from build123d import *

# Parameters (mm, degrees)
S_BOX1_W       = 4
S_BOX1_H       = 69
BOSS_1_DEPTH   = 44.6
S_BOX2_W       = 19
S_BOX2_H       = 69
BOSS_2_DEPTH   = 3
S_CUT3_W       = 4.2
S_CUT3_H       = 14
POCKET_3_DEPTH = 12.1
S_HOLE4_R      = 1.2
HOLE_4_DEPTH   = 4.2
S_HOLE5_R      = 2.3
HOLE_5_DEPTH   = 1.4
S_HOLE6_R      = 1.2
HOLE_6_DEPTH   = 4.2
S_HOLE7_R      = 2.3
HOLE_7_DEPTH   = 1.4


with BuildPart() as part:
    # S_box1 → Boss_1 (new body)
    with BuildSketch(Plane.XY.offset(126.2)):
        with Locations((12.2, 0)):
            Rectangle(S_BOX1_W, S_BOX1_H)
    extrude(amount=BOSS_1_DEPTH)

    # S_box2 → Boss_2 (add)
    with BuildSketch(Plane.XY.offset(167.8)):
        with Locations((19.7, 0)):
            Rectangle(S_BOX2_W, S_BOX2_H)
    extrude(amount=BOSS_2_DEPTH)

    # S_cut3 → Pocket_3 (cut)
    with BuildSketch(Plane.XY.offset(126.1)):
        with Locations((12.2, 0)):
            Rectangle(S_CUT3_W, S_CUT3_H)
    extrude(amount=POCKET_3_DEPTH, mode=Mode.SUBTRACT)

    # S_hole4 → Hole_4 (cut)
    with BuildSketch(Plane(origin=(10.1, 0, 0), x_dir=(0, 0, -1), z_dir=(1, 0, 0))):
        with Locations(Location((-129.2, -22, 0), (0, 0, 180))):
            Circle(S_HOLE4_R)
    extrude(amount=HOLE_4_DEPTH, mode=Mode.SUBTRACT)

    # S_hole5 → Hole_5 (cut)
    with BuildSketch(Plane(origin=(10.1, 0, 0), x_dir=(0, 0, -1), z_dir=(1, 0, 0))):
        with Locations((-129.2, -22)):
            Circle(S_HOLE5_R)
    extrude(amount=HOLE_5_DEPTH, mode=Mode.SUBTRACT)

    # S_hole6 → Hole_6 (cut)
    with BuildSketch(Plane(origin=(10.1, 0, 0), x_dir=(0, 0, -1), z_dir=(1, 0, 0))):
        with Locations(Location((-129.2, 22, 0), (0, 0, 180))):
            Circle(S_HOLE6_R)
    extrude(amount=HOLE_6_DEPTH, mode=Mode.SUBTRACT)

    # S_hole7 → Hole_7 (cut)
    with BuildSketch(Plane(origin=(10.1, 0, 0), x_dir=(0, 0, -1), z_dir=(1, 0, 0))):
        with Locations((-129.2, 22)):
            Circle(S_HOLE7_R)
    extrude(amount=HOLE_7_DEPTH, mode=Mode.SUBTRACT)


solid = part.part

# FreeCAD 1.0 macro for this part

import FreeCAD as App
import Part
import Sketcher
from FreeCAD import Vector
Q = App.Units.Quantity


def add_polygon(sketch, points):
    """Adds a closed chain of lines whose ends are joined by coincident constraints."""
    first, n = sketch.GeometryCount, len(points)
    for a, b in zip(points, points[1:] + points[:1]):
        sketch.addGeometry(Part.LineSegment(App.Vector(*a, 0), App.Vector(*b, 0)), False)
    for i in range(n):
        sketch.addConstraint(Sketcher.Constraint("Coincident", first + i, 2, first + (i + 1) % n, 1))

doc = App.newDocument("Part")
body = doc.addObject("PartDesign::Body", "Body")

# Sketch on XY plane
sketch1 = body.newObject("Sketcher::SketchObject", "Sketch")
sketch1.AttachmentSupport = (doc.getObject("XY_Plane"), [""])
sketch1.MapMode = "FlatFace"
sketch1.AttachmentOffset = App.Placement(Vector(0, 0, 126.2), App.Rotation())
add_polygon(sketch1, [(10.2, 34.5), (10.2, -34.5), (14.2, -34.5), (14.2, 34.5)])  # lines 0-3
sketch1.addConstraint([
    Sketcher.Constraint("Vertical", 0),
    Sketcher.Constraint("Horizontal", 1),
    Sketcher.Constraint("Vertical", 2),
    Sketcher.Constraint("Horizontal", 3),
    Sketcher.Constraint("DistanceX", 1, 1, 1, 2, Q("4 mm")),
    Sketcher.Constraint("DistanceY", 0, 2, 0, 1, Q("69 mm")),
    Sketcher.Constraint("DistanceX", -1, 1, 0, 2, Q("10.2 mm")),
    Sketcher.Constraint("DistanceY", 0, 2, -1, 1, Q("34.5 mm")),
])
pad1 = body.newObject("PartDesign::Pad", "Pad")
pad1.Profile = sketch1
pad1.Length = 44.6

# Sketch on XY plane
sketch2 = body.newObject("Sketcher::SketchObject", "Sketch001")
sketch2.AttachmentSupport = (doc.getObject("XY_Plane"), [""])
sketch2.MapMode = "FlatFace"
sketch2.AttachmentOffset = App.Placement(Vector(0, 0, 167.8), App.Rotation())
add_polygon(sketch2, [(10.2, 34.5), (10.2, -34.5), (29.2, -34.5), (29.2, 34.5)])  # lines 0-3
sketch2.addConstraint([
    Sketcher.Constraint("Vertical", 0),
    Sketcher.Constraint("Horizontal", 1),
    Sketcher.Constraint("Vertical", 2),
    Sketcher.Constraint("Horizontal", 3),
    Sketcher.Constraint("DistanceX", 1, 1, 1, 2, Q("19 mm")),
    Sketcher.Constraint("DistanceY", 0, 2, 0, 1, Q("69 mm")),
    Sketcher.Constraint("DistanceX", -1, 1, 0, 2, Q("10.2 mm")),
    Sketcher.Constraint("DistanceY", 0, 2, -1, 1, Q("34.5 mm")),
])
pad2 = body.newObject("PartDesign::Pad", "Pad001")
pad2.Profile = sketch2
pad2.Length = 3

# Sketch on XY plane
sketch3 = body.newObject("Sketcher::SketchObject", "Sketch002")
sketch3.AttachmentSupport = (doc.getObject("XY_Plane"), [""])
sketch3.MapMode = "FlatFace"
sketch3.AttachmentOffset = App.Placement(Vector(0, 0, 126.1), App.Rotation())
add_polygon(sketch3, [(10.1, 7), (10.1, -7), (14.3, -7), (14.3, 7)])  # lines 0-3
sketch3.addConstraint([
    Sketcher.Constraint("Vertical", 0),
    Sketcher.Constraint("Horizontal", 1),
    Sketcher.Constraint("Vertical", 2),
    Sketcher.Constraint("Horizontal", 3),
    Sketcher.Constraint("DistanceY", 0, 2, 0, 1, Q("14 mm")),
    Sketcher.Constraint("DistanceX", 1, 1, 1, 2, Q("4.2 mm")),
    Sketcher.Constraint("DistanceY", 0, 2, -1, 1, Q("7 mm")),
    Sketcher.Constraint("DistanceX", -1, 1, 0, 2, Q("10.1 mm")),
])
pocket1 = body.newObject("PartDesign::Pocket", "Pocket")
pocket1.Profile = sketch3
pocket1.Length = 12.1
pocket1.Reversed = True

# Sketch on YZ plane
sketch4 = body.newObject("Sketcher::SketchObject", "Sketch003")
sketch4.AttachmentSupport = (doc.getObject("YZ_Plane"), [""])
sketch4.MapMode = "FlatFace"
sketch4.AttachmentOffset = App.Placement(Vector(0, 0, 10.1), App.Rotation())
sketch4.addGeometry(Part.Circle(Vector(-22, 129.2, 0), Vector(0, 0, 1), 1.2), False)
sketch4.addConstraint([
    Sketcher.Constraint("Diameter", 0, Q("2.4 mm")),
    Sketcher.Constraint("DistanceX", 0, 3, -1, 1, Q("22 mm")),
    Sketcher.Constraint("DistanceY", -1, 1, 0, 3, Q("129.2 mm")),
])
pocket2 = body.newObject("PartDesign::Pocket", "Pocket001")
pocket2.Profile = sketch4
pocket2.Length = 4.2
pocket2.Reversed = True

# Sketch on YZ plane
sketch5 = body.newObject("Sketcher::SketchObject", "Sketch004")
sketch5.AttachmentSupport = (doc.getObject("YZ_Plane"), [""])
sketch5.MapMode = "FlatFace"
sketch5.AttachmentOffset = App.Placement(Vector(0, 0, 10.1), App.Rotation())
sketch5.addGeometry(Part.Circle(Vector(-22, 129.2, 0), Vector(0, 0, 1), 2.3), False)
sketch5.addConstraint([
    Sketcher.Constraint("Diameter", 0, Q("4.6 mm")),
    Sketcher.Constraint("DistanceX", 0, 3, -1, 1, Q("22 mm")),
    Sketcher.Constraint("DistanceY", -1, 1, 0, 3, Q("129.2 mm")),
])
pocket3 = body.newObject("PartDesign::Pocket", "Pocket002")
pocket3.Profile = sketch5
pocket3.Length = 1.4
pocket3.Reversed = True

# Sketch on YZ plane
sketch6 = body.newObject("Sketcher::SketchObject", "Sketch005")
sketch6.AttachmentSupport = (doc.getObject("YZ_Plane"), [""])
sketch6.MapMode = "FlatFace"
sketch6.AttachmentOffset = App.Placement(Vector(0, 0, 10.1), App.Rotation())
sketch6.addGeometry(Part.Circle(Vector(22, 129.2, 0), Vector(0, 0, 1), 1.2), False)
sketch6.addConstraint([
    Sketcher.Constraint("Diameter", 0, Q("2.4 mm")),
    Sketcher.Constraint("DistanceX", -1, 1, 0, 3, Q("22 mm")),
    Sketcher.Constraint("DistanceY", -1, 1, 0, 3, Q("129.2 mm")),
])
pocket4 = body.newObject("PartDesign::Pocket", "Pocket003")
pocket4.Profile = sketch6
pocket4.Length = 4.2
pocket4.Reversed = True

# Sketch on YZ plane
sketch7 = body.newObject("Sketcher::SketchObject", "Sketch006")
sketch7.AttachmentSupport = (doc.getObject("YZ_Plane"), [""])
sketch7.MapMode = "FlatFace"
sketch7.AttachmentOffset = App.Placement(Vector(0, 0, 10.1), App.Rotation())
sketch7.addGeometry(Part.Circle(Vector(22, 129.2, 0), Vector(0, 0, 1), 2.3), False)
sketch7.addConstraint([
    Sketcher.Constraint("Diameter", 0, Q("4.6 mm")),
    Sketcher.Constraint("DistanceX", -1, 1, 0, 3, Q("22 mm")),
    Sketcher.Constraint("DistanceY", -1, 1, 0, 3, Q("129.2 mm")),
])
pocket5 = body.newObject("PartDesign::Pocket", "Pocket004")
pocket5.Profile = sketch7
pocket5.Length = 1.4
pocket5.Reversed = True

doc.recompute()
